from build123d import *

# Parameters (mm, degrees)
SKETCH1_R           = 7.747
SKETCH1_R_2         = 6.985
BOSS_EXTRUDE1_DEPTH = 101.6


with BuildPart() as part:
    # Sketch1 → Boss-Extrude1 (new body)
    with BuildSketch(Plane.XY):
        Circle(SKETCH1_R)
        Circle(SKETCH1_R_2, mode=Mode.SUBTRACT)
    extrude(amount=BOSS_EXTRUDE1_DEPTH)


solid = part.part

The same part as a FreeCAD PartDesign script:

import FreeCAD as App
import Part
import Sketcher
Q = App.Units.Quantity

doc = App.newDocument("Part")
body = doc.addObject("PartDesign::Body", "Body")

# Sketch on XY plane
sketch1 = doc.addObject("Sketcher::SketchObject", "Sketch")
body.addObject(sketch1)
sketch1.AttachmentSupport = (doc.XY_Plane, [""])
sketch1.MapMode = "FlatFace"
sketch1.addGeometry(Part.Circle(App.Vector(0, 0, 0), App.Vector(0, 0, 1), 7.747), False)
sketch1.addGeometry(Part.Circle(App.Vector(0, 0, 0), App.Vector(0, 0, 1), 6.985), False)
sketch1.addConstraint(Sketcher.Constraint("Coincident", 0, 3, -1, 1))
sketch1.addConstraint(Sketcher.Constraint("Coincident", 1, 3, -1, 1))
sketch1.addConstraint(Sketcher.Constraint("Diameter", 0, Q("0.61 in")))
sketch1.addConstraint(Sketcher.Constraint("Diameter", 1, Q("0.55 in")))
pad1 = doc.addObject("PartDesign::Pad", "Pad")
body.addObject(pad1)
pad1.Profile = sketch1
pad1.Length = Q("4 in")

doc.recompute()
